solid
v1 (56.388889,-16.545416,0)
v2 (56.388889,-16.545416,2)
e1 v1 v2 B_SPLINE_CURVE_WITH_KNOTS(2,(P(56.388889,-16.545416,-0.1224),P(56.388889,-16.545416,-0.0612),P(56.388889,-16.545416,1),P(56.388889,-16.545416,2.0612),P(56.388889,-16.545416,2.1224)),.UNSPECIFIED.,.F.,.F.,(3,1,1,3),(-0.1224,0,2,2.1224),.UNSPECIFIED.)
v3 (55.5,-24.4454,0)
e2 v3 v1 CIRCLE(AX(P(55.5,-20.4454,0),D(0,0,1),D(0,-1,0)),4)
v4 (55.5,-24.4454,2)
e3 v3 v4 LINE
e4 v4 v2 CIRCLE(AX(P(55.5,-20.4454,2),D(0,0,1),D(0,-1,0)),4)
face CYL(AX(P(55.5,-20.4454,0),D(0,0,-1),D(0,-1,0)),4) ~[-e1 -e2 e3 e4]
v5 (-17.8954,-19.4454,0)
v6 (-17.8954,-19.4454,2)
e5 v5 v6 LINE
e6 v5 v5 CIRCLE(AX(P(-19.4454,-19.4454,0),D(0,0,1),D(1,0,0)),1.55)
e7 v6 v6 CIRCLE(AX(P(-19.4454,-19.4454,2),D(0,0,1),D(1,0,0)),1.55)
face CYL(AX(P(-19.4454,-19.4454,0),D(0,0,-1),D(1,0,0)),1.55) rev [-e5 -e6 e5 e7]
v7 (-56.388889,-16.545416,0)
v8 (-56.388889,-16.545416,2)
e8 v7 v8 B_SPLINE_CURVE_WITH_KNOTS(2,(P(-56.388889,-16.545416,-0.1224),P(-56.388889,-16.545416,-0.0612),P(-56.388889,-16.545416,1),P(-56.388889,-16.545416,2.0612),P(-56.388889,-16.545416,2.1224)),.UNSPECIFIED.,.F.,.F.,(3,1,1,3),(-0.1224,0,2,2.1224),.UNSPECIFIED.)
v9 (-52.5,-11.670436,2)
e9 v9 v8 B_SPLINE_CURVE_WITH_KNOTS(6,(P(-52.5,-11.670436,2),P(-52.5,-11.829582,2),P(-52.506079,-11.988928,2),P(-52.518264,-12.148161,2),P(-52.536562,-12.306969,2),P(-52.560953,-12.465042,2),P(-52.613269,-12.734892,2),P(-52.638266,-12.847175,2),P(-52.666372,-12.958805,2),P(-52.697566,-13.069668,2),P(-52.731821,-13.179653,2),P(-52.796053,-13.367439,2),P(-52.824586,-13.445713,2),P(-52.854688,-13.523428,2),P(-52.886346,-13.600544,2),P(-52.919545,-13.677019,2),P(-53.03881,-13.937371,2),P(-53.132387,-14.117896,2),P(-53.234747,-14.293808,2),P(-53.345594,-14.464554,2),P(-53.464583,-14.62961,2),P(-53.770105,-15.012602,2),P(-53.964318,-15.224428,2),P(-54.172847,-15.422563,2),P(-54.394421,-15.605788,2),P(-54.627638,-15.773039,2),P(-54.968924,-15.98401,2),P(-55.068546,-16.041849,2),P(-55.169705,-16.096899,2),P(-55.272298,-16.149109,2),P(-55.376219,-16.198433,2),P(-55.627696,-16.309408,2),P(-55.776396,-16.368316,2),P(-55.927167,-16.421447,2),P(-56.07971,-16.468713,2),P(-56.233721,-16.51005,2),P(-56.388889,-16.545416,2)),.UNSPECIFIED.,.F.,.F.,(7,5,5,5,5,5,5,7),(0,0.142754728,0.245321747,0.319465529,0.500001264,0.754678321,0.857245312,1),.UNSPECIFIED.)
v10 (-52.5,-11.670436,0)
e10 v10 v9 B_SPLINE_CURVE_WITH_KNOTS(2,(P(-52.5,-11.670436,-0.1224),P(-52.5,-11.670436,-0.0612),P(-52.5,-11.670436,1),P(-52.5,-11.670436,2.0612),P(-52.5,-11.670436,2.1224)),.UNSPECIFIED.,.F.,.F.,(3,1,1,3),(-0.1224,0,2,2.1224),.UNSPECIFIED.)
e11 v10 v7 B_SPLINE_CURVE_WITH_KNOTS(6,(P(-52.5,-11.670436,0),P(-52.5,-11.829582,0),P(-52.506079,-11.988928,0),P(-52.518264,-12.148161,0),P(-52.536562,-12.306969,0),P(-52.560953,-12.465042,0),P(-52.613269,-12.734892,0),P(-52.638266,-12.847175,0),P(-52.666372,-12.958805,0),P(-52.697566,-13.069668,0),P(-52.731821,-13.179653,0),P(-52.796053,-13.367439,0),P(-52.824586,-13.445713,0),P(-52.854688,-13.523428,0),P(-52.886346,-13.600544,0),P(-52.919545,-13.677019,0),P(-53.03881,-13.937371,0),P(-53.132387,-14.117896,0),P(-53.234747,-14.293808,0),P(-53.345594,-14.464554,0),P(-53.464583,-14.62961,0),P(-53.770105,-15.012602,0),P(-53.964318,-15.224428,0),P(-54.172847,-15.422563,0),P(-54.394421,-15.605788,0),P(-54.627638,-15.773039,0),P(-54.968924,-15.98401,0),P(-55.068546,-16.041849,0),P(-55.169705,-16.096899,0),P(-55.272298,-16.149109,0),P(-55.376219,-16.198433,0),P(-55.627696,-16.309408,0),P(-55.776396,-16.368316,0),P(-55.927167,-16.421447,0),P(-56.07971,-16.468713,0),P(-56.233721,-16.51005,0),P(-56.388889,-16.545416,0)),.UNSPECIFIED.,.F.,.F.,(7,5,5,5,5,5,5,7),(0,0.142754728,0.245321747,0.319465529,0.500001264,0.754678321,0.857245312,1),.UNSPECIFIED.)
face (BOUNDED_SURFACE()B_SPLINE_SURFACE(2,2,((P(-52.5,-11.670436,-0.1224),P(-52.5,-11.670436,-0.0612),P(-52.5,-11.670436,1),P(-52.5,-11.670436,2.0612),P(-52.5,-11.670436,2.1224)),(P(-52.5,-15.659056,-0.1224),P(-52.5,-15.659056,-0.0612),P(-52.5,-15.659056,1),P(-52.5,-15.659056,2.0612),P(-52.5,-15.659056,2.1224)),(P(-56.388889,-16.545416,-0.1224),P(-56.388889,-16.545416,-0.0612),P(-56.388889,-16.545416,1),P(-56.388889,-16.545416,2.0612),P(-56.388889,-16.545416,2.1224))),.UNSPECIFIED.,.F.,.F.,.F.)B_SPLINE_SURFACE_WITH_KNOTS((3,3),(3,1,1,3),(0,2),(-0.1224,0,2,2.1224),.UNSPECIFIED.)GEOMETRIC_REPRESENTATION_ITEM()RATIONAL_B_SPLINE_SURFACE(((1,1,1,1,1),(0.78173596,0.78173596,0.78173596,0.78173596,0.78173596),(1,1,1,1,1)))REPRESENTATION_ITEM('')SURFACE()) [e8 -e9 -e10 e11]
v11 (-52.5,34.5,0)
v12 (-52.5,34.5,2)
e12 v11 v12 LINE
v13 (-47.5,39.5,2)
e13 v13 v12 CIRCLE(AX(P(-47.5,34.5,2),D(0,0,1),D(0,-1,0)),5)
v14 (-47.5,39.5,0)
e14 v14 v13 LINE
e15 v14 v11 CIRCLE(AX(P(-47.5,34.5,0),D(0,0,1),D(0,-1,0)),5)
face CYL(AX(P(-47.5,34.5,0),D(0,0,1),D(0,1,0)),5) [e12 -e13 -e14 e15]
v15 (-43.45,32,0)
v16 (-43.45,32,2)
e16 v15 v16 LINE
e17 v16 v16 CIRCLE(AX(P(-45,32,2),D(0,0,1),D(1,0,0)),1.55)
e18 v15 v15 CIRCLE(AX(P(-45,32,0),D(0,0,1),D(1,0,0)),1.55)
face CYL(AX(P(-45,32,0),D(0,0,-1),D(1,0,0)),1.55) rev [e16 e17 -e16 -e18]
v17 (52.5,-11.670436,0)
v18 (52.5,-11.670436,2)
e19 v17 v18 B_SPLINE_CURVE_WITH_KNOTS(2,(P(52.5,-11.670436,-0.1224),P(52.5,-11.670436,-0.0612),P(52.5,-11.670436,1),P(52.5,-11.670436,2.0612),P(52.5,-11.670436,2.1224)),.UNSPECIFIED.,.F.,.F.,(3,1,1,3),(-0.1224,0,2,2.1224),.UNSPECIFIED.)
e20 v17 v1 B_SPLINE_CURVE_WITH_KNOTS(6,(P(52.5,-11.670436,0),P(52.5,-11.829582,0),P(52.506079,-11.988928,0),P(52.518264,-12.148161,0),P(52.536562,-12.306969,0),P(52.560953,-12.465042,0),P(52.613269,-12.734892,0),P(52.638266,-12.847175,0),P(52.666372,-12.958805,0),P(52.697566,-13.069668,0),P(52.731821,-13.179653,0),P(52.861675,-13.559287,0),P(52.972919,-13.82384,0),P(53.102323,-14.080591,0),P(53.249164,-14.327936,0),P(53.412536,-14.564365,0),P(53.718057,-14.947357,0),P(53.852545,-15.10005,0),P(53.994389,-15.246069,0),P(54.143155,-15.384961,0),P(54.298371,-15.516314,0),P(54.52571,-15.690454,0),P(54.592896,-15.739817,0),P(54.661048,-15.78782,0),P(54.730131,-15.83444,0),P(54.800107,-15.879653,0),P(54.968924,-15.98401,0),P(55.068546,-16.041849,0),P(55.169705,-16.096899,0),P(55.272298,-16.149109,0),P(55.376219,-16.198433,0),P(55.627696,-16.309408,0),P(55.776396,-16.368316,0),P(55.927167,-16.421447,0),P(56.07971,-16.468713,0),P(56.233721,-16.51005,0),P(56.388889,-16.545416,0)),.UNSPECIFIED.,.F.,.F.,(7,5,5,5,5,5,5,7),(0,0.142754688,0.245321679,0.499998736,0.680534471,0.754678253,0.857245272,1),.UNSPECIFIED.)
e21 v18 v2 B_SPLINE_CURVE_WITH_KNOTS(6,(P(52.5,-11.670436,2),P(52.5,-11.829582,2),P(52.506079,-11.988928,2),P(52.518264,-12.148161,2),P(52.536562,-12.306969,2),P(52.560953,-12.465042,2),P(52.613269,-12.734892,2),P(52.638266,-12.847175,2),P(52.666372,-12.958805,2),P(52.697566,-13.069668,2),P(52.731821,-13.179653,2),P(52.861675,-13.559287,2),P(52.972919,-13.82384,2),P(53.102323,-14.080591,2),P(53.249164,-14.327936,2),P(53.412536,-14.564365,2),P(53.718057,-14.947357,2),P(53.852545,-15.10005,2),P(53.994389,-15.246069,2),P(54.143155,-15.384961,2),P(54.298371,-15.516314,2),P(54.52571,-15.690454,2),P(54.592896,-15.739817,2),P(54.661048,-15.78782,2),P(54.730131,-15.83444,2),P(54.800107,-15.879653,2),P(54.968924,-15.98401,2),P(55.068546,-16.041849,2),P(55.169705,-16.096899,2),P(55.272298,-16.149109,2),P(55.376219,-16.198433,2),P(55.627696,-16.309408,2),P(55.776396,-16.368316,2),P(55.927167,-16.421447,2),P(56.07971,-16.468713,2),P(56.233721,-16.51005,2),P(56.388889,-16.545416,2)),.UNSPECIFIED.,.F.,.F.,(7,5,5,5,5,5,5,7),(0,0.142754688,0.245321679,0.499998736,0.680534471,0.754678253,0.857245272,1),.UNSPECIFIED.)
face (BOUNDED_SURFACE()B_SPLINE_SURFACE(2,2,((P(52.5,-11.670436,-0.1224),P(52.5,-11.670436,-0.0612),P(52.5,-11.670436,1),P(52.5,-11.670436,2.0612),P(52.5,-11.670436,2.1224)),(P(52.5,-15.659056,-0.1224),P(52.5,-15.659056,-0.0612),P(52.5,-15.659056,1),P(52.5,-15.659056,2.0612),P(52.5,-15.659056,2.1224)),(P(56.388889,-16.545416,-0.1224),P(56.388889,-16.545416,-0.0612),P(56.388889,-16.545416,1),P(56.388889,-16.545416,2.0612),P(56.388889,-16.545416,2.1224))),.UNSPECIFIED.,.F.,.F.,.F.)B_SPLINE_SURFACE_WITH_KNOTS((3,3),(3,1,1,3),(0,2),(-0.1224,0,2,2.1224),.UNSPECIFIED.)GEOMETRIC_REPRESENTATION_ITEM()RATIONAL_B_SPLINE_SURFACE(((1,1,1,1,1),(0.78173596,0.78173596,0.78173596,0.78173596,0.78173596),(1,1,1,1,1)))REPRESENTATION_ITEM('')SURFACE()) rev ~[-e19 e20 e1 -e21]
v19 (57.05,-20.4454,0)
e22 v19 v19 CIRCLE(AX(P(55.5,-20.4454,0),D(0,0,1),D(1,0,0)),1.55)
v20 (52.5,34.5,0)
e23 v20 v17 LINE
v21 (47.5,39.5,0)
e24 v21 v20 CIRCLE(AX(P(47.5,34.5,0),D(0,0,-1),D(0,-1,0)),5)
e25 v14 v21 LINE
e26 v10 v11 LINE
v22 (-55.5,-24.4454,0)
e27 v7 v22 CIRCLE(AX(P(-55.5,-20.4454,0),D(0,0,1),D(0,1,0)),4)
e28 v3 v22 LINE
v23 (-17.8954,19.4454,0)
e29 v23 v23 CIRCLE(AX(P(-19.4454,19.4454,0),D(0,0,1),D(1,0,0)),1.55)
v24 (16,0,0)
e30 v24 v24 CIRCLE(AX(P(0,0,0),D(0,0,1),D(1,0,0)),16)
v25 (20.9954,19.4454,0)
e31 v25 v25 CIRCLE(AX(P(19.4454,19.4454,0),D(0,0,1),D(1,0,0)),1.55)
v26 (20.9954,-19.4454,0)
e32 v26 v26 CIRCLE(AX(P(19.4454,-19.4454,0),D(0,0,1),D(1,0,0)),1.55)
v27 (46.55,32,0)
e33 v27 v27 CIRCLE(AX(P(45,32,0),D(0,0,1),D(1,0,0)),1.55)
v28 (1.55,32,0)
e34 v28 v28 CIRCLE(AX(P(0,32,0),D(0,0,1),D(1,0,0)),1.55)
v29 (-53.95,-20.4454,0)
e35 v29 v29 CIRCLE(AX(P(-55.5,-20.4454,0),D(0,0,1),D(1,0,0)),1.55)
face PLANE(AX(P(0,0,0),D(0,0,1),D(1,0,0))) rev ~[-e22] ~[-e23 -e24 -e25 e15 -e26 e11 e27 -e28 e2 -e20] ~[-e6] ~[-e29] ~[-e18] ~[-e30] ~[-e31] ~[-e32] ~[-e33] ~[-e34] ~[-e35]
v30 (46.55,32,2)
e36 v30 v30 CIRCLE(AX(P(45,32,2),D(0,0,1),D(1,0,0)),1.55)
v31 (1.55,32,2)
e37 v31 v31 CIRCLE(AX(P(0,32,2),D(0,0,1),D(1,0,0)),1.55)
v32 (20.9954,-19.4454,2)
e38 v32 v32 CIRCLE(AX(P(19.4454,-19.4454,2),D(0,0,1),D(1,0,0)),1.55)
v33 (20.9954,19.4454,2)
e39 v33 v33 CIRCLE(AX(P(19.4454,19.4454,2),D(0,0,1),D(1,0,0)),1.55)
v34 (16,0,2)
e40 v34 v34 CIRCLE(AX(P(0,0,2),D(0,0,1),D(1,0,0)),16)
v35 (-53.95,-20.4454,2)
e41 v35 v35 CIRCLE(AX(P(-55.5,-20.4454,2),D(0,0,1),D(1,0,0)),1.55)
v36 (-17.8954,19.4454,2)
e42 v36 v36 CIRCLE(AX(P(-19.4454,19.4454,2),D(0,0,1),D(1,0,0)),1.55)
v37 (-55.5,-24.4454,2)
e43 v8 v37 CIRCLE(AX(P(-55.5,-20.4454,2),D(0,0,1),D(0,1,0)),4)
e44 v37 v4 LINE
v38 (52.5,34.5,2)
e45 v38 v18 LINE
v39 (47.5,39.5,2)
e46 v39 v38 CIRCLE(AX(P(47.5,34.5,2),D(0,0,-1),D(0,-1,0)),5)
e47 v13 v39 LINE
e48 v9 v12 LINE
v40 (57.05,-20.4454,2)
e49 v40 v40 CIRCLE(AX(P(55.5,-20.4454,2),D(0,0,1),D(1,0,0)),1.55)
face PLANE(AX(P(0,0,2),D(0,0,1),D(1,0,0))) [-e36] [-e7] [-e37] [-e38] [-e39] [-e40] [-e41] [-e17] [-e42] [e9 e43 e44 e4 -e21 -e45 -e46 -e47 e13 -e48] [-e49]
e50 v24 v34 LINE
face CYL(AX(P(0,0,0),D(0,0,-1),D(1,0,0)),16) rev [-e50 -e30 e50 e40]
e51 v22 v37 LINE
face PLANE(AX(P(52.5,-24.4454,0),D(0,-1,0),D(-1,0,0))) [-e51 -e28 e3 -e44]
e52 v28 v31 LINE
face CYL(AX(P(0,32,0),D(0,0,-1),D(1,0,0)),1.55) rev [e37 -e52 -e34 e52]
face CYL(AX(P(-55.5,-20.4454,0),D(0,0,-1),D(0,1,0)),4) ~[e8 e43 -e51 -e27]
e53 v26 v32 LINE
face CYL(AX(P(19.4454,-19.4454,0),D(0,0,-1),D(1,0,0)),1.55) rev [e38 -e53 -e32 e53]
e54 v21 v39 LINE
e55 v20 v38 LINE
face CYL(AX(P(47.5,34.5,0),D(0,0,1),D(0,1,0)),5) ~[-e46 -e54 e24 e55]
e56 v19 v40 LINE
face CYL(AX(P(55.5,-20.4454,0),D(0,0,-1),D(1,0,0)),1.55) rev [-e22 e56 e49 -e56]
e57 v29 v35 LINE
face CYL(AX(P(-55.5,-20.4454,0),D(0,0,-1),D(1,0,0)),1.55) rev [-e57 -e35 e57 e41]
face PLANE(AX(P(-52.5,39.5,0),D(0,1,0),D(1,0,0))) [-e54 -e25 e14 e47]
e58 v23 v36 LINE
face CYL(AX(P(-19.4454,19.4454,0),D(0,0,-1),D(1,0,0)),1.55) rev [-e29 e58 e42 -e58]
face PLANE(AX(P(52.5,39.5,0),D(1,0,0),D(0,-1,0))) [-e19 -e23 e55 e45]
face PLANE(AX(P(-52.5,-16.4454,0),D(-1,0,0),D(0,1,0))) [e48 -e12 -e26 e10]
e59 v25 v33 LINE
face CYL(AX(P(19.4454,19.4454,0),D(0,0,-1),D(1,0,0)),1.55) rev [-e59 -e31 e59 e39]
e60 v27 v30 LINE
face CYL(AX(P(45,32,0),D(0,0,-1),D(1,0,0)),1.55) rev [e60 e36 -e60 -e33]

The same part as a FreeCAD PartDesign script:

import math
import FreeCAD as App
import Part
import Sketcher

V = App.Vector


def edges_at(feature, points):
    """Names of the edges that pass closest to the given points."""
    edges = feature.Shape.Edges
    near = lambda p: min(range(len(edges)), key=lambda i: edges[i].distToShape(Part.Vertex(*p))[0])
    return sorted({f"Edge{near(p) + 1}" for p in points})

doc = App.newDocument("Part")
body = doc.addObject("PartDesign::Body", "Body")

sketch1 = body.newObject("Sketcher::SketchObject", "Sketch")
sketch1.AttachmentSupport = (doc.getObject("XY_Plane"), [""])
sketch1.MapMode = "FlatFace"
sketch1.addGeometry(Part.LineSegment(V(52.5, 39.5, 0), V(-52.5, 39.5, 0)), False)
sketch1.addGeometry(Part.LineSegment(V(-52.5, 39.5, 0), V(-52.5, -16.4, 0)), False)
sketch1.addGeometry(Part.LineSegment(V(-52.5, -16.4, 0), V(-55.5, -16.4, 0)), False)
sketch1.addGeometry(Part.ArcOfCircle(Part.Circle(V(-55.5, -20.4, 0), V(0, 0, 1), 4), math.radians(90), math.radians(270)), False)
sketch1.addGeometry(Part.LineSegment(V(-55.5, -24.4, 0), V(55.5, -24.4, 0)), False)
sketch1.addGeometry(Part.ArcOfCircle(Part.Circle(V(55.5, -20.4, 0), V(0, 0, 1), 4), math.radians(-90), math.radians(90)), False)
sketch1.addGeometry(Part.LineSegment(V(55.5, -16.4, 0), V(52.5, -16.4, 0)), False)
sketch1.addGeometry(Part.LineSegment(V(52.5, -16.4, 0), V(52.5, 39.5, 0)), False)
sketch1.addGeometry(Part.Circle(V(-19.4, -19.4, 0), V(0, 0, 1), 1.6), False)
sketch1.addGeometry(Part.Circle(V(19.4, -19.4, 0), V(0, 0, 1), 1.6), False)
sketch1.addGeometry(Part.Circle(V(0, 0, 0), V(0, 0, 1), 16), False)
sketch1.addGeometry(Part.Circle(V(-19.4, 19.4, 0), V(0, 0, 1), 1.6), False)
sketch1.addGeometry(Part.Circle(V(-45, 32, 0), V(0, 0, 1), 1.6), False)
sketch1.addGeometry(Part.Circle(V(19.4, 19.4, 0), V(0, 0, 1), 1.6), False)
sketch1.addGeometry(Part.Circle(V(0, 32, 0), V(0, 0, 1), 1.6), False)
sketch1.addGeometry(Part.Circle(V(45, 32, 0), V(0, 0, 1), 1.6), False)
sketch1.addGeometry(Part.Circle(V(55.5, -20.4, 0), V(0, 0, 1), 1.6), False)
sketch1.addGeometry(Part.Circle(V(-55.5, -20.4, 0), V(0, 0, 1), 1.6), False)
sketch1.addConstraint(Sketcher.Constraint("Coincident", 0, 2, 1, 1))
sketch1.addConstraint(Sketcher.Constraint("Coincident", 1, 2, 2, 1))
sketch1.addConstraint(Sketcher.Constraint("Tangent", 2, 2, 3, 1))
sketch1.addConstraint(Sketcher.Constraint("Tangent", 3, 2, 4, 1))
sketch1.addConstraint(Sketcher.Constraint("Tangent", 4, 2, 5, 1))
sketch1.addConstraint(Sketcher.Constraint("Tangent", 5, 2, 6, 1))
sketch1.addConstraint(Sketcher.Constraint("Coincident", 6, 2, 7, 1))
sketch1.addConstraint(Sketcher.Constraint("Coincident", 7, 2, 0, 1))
sketch1.addConstraint(Sketcher.Constraint("Horizontal", 0))
sketch1.addConstraint(Sketcher.Constraint("Vertical", 1))
sketch1.addConstraint(Sketcher.Constraint("Horizontal", 2))
sketch1.addConstraint(Sketcher.Constraint("Horizontal", 4))
sketch1.addConstraint(Sketcher.Constraint("Horizontal", 6))
sketch1.addConstraint(Sketcher.Constraint("Vertical", 7))
sketch1.addConstraint(Sketcher.Constraint("Coincident", 10, 3, -1, 1))
sketch1.addConstraint(Sketcher.Constraint("Coincident", 16, 3, 5, 3))
sketch1.addConstraint(Sketcher.Constraint("Coincident", 17, 3, 3, 3))
sketch1.addConstraint(Sketcher.Constraint("Equal", 3, 5))
sketch1.addConstraint(Sketcher.Constraint("Equal", 8, 9))
sketch1.addConstraint(Sketcher.Constraint("Equal", 9, 11))
sketch1.addConstraint(Sketcher.Constraint("Equal", 11, 12))
sketch1.addConstraint(Sketcher.Constraint("Equal", 12, 13))
sketch1.addConstraint(Sketcher.Constraint("Equal", 13, 14))
sketch1.addConstraint(Sketcher.Constraint("Equal", 14, 15))
sketch1.addConstraint(Sketcher.Constraint("Equal", 15, 16))
sketch1.addConstraint(Sketcher.Constraint("Equal", 16, 17))
sketch1.addConstraint(Sketcher.Constraint("Symmetric", 9, 3, 11, 3, -1, 1))
sketch1.addConstraint(Sketcher.Constraint("Symmetric", 8, 3, 13, 3, -1, 1))
sketch1.addConstraint(Sketcher.Constraint("Symmetric", 8, 3, 9, 3, -2))
sketch1.addConstraint(Sketcher.Constraint("Symmetric", 12, 3, 15, 3, -2))
sketch1.addConstraint(Sketcher.Constraint("PointOnObject", 14, 3, -2))
sketch1.addConstraint(Sketcher.Constraint("Horizontal", 12, 3, 14, 3))
sketch1.addConstraint(Sketcher.Constraint("Equal", 2, 6))
sketch1.addConstraint(Sketcher.Constraint("Diameter", 10, 32.0))
sketch1.addConstraint(Sketcher.Constraint("Radius", 3, 4.0))
sketch1.addConstraint(Sketcher.Constraint("Diameter", 8, 3.1))
sketch1.addConstraint(Sketcher.Constraint("DistanceX", 0, 2, 0, 1, 105.0))
sketch1.addConstraint(Sketcher.Constraint("DistanceX", 2, 2, 2, 1, 3.0))
sketch1.addConstraint(Sketcher.Constraint("DistanceX", 12, 3, -1, 1, 45.0))
sketch1.addConstraint(Sketcher.Constraint("DistanceY", -1, 1, 12, 3, 32.0))
sketch1.addConstraint(Sketcher.Constraint("DistanceY", 8, 3, 1, 2, 3.0))
sketch1.addConstraint(Sketcher.Constraint("DistanceX", 0, 2, 12, 3, 7.5))
sketch1.addConstraint(Sketcher.Constraint("DistanceY", 12, 3, 0, 2, 7.5))
sketch1.addConstraint(Sketcher.Constraint("DistanceY", 1, 2, 1, 1, 55.9454))
sketch1.addConstraint(Sketcher.Constraint("DistanceX", 8, 3, -1, 1, 19.4454))
pad1 = body.newObject("PartDesign::Pad", "Pad")
pad1.Profile = sketch1
pad1.Length = 2
doc.recompute()

fillet = body.newObject("PartDesign::Fillet", "Fillet")
fillet.Base = (pad1, edges_at(pad1, [
    (-52.5, 39.5, 1),
    (52.5, 39.5, 1),
    (52.5, -16.445, 1),
    (-52.5, -16.445, 1),
]))
fillet.Radius = 5

doc.recompute()
